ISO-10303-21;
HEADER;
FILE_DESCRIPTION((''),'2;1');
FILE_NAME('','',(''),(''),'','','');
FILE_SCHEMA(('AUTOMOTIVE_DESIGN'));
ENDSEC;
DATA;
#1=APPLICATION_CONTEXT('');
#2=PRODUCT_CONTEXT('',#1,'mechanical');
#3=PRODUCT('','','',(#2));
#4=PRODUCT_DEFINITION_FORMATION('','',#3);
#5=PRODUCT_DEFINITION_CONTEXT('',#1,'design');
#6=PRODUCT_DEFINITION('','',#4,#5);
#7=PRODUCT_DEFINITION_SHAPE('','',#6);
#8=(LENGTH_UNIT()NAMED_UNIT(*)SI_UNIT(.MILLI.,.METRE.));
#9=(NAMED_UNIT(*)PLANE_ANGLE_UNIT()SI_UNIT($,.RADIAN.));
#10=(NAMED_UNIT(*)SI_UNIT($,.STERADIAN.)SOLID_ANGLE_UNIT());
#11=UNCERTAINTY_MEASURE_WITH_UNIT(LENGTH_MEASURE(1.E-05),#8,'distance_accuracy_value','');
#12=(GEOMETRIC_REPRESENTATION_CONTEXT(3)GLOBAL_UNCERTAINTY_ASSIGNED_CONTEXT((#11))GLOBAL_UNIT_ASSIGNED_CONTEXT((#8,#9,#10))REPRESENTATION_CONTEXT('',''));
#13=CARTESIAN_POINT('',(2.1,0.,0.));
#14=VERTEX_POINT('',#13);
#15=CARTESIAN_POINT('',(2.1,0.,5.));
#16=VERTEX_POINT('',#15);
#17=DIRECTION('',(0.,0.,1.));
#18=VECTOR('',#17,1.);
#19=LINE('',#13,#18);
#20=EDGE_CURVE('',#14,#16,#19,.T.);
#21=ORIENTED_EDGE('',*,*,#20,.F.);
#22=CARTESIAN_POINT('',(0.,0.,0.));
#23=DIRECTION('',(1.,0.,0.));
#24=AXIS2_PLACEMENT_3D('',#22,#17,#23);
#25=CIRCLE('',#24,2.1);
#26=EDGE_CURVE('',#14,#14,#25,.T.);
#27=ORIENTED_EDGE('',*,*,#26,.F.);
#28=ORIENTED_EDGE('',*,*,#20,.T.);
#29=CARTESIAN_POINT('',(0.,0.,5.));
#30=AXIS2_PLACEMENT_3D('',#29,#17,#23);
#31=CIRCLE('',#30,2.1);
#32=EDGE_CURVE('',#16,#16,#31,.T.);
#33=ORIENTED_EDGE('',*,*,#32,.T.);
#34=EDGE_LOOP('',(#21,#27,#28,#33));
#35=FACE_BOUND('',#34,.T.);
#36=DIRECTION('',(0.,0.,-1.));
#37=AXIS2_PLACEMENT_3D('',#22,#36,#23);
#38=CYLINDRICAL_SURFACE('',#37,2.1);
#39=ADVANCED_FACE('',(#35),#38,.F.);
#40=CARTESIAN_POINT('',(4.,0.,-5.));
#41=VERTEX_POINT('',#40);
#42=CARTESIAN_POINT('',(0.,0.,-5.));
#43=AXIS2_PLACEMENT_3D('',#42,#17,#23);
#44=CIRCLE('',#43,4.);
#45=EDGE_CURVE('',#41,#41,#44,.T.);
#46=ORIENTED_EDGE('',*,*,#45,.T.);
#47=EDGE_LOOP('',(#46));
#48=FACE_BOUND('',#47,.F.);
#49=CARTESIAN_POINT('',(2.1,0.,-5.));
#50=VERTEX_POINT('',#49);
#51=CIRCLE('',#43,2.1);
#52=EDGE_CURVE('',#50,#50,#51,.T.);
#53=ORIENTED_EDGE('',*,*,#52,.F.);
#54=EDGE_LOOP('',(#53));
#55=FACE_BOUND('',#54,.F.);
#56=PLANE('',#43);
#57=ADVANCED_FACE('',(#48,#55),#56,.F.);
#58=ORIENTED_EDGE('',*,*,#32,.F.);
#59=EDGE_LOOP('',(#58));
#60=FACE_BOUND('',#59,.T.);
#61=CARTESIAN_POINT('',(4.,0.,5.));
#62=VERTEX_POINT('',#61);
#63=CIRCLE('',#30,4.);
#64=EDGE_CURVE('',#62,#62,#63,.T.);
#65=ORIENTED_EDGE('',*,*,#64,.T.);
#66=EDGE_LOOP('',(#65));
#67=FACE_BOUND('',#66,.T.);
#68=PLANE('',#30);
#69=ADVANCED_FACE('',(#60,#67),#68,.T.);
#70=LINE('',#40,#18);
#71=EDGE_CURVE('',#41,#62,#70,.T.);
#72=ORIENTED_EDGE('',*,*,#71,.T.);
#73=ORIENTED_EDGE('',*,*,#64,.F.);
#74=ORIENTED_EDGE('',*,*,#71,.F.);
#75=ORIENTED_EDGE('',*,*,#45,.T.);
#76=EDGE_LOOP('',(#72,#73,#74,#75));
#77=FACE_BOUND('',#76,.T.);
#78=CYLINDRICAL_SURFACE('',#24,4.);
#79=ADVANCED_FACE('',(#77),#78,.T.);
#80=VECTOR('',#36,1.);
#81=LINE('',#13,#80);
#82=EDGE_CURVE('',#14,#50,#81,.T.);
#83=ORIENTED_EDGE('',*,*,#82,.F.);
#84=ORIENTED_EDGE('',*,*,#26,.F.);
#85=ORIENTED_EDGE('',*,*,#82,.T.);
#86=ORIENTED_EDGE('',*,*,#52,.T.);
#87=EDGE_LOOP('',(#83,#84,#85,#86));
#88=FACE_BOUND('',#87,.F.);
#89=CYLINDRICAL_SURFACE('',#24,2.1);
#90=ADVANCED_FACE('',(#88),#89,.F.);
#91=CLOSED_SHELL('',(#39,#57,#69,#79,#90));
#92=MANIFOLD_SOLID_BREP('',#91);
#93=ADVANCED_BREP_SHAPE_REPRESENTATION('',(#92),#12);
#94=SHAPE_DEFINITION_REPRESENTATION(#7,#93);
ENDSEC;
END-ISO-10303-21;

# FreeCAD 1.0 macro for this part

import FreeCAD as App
import Part
import Sketcher
Q = App.Units.Quantity

doc = App.newDocument("Part")
body = doc.addObject("PartDesign::Body", "Body")

# Sketch on XY plane
sketch1 = body.newObject("Sketcher::SketchObject", "Sketch")
sketch1.AttachmentSupport = (doc.getObject("XY_Plane"), [""])
sketch1.MapMode = "FlatFace"
sketch1.addGeometry(Part.Circle(App.Vector(0, 0, 0), App.Vector(0, 0, 1), 4), False)
sketch1.addGeometry(Part.Circle(App.Vector(0, 0, 0), App.Vector(0, 0, 1), 2.1), False)
sketch1.addConstraint(Sketcher.Constraint("Coincident", 0, 3, -1, 1))
sketch1.addConstraint(Sketcher.Constraint("Coincident", 1, 3, -1, 1))
sketch1.addConstraint(Sketcher.Constraint("Diameter", 0, Q("8 mm")))
sketch1.addConstraint(Sketcher.Constraint("Diameter", 1, Q("4.2 mm")))
pad1 = body.newObject("PartDesign::Pad", "Pad")
pad1.Profile = sketch1
pad1.Type = "TwoLengths"
pad1.Length = 5
pad1.Length2 = 5

doc.recompute()
